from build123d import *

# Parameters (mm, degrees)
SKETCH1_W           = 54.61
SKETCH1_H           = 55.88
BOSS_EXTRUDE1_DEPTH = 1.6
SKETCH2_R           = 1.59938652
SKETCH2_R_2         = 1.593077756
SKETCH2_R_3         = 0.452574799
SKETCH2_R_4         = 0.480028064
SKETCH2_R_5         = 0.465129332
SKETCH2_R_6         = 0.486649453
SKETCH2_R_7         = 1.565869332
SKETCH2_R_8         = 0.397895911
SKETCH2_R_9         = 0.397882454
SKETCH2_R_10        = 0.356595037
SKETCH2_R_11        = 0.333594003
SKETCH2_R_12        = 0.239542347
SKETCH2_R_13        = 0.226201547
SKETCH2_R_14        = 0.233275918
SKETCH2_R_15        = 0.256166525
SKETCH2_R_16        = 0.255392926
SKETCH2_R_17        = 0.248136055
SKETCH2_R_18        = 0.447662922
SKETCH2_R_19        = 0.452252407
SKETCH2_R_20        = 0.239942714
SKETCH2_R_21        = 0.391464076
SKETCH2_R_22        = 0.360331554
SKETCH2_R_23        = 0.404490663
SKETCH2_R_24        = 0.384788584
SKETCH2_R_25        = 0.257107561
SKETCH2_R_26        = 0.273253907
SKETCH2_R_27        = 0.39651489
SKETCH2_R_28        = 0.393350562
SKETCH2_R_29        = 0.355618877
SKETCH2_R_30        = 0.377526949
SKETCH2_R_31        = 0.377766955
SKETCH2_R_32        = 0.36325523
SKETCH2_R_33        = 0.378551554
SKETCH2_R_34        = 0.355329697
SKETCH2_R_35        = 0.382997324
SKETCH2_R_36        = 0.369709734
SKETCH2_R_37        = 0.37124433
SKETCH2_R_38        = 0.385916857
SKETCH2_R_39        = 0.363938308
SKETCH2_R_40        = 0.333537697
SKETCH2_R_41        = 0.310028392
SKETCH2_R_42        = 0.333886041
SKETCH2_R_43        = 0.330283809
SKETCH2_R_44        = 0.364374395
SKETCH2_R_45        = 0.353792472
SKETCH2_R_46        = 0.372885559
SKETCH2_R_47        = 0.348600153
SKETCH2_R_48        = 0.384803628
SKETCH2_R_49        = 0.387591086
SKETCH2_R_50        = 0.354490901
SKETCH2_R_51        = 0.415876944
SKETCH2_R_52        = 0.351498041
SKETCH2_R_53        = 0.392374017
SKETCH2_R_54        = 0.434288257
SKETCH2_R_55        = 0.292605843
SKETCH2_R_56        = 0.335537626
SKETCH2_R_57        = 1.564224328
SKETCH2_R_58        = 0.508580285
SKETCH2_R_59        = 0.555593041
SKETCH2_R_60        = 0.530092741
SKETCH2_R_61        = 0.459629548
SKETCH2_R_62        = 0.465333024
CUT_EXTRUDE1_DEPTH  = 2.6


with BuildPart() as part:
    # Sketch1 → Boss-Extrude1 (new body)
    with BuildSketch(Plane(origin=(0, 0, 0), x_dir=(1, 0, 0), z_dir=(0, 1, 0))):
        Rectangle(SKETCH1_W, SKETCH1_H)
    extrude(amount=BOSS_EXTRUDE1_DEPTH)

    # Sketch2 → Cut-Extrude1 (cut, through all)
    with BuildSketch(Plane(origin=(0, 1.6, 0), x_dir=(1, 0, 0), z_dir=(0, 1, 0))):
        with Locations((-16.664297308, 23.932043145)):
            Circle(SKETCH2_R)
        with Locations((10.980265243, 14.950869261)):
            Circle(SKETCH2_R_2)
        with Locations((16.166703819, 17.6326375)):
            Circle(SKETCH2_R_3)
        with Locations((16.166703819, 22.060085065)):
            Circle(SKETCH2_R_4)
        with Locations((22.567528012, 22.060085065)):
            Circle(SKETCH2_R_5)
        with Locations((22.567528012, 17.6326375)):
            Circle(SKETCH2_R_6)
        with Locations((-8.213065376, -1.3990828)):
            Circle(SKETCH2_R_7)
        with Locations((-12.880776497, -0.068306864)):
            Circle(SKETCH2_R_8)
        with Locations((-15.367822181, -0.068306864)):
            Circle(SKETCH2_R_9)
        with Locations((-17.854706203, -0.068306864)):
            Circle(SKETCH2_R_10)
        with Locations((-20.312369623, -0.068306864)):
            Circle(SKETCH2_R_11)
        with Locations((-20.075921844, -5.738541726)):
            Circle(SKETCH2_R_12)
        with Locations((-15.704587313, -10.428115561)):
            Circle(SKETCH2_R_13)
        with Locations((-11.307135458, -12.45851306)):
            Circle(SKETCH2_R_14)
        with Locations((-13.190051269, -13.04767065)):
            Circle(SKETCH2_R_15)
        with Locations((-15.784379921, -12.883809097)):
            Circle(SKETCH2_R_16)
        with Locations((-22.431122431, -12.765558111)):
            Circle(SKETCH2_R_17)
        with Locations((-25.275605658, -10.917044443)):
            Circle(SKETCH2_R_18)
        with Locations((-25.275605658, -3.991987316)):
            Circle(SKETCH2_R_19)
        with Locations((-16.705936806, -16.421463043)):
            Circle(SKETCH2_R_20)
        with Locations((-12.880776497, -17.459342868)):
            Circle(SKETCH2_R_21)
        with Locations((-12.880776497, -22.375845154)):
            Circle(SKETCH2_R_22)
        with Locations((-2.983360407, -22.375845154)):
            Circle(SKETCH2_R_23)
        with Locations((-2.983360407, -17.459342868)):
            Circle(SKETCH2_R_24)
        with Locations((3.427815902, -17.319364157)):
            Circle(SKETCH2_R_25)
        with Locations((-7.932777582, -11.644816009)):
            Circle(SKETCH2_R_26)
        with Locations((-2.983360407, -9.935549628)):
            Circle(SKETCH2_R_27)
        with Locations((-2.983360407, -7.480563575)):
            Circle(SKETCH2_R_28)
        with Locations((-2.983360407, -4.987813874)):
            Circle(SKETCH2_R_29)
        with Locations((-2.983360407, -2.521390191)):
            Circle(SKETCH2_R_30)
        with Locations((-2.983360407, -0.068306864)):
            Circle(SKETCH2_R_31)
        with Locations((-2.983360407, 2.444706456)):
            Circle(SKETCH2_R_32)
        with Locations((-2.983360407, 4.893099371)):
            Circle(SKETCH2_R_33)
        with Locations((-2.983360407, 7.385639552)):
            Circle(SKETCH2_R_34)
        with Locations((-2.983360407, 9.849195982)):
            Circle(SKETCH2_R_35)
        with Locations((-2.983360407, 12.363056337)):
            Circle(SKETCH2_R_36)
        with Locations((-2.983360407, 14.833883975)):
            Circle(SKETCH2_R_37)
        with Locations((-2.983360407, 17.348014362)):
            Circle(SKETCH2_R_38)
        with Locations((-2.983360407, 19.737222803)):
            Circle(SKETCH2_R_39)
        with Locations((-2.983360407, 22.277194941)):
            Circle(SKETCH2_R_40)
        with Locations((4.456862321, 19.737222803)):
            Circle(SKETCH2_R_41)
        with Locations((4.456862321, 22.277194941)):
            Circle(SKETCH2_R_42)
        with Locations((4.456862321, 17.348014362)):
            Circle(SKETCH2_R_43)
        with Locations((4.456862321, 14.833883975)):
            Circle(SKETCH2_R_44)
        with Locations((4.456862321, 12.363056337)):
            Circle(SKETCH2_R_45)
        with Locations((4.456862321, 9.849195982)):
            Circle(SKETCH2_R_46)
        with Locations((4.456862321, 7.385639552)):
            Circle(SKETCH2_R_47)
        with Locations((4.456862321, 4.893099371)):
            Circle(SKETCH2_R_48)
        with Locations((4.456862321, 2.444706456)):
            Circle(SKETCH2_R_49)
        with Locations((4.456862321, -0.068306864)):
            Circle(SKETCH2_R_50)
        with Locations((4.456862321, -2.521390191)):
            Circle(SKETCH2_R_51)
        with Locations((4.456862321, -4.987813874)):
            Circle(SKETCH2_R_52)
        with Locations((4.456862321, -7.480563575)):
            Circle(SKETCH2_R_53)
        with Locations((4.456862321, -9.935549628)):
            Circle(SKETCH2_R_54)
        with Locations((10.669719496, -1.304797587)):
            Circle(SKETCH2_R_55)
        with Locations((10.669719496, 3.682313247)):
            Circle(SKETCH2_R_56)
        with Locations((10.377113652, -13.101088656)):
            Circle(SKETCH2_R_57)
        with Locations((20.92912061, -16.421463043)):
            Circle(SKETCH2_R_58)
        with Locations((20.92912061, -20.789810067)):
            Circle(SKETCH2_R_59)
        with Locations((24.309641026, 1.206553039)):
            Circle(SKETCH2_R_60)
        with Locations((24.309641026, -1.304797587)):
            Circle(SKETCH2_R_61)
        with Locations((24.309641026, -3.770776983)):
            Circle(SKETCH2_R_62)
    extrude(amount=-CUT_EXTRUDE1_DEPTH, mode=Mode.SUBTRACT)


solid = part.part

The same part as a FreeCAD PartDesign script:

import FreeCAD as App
import Part
import Sketcher

V = App.Vector


def add_polygon(sketch, points):
    """Adds a closed chain of lines whose ends are joined by coincident constraints."""
    first, n = sketch.GeometryCount, len(points)
    for a, b in zip(points, points[1:] + points[:1]):
        sketch.addGeometry(Part.LineSegment(App.Vector(*a, 0), App.Vector(*b, 0)), False)
    for i in range(n):
        sketch.addConstraint(Sketcher.Constraint("Coincident", first + i, 2, first + (i + 1) % n, 1))

doc = App.newDocument("Part")
params = doc.addObject("Spreadsheet::Sheet", "Params")
for row, (alias, value) in enumerate([
    ("sketch1_width", "54.61 mm"),
    ("sketch1_height", "55.88 mm"),
    ("pad1_length", "1.6 mm"),
], start=1):
    params.set(f"A{row}", alias)
    params.set(f"B{row}", "=" + value)
    params.setAlias(f"B{row}", alias)

body = doc.addObject("PartDesign::Body", "Body")

# Sketch on XZ plane
sketch1 = doc.addObject("Sketcher::SketchObject", "Sketch")
body.addObject(sketch1)
sketch1.AttachmentSupport = (doc.XZ_Plane, [""])
sketch1.MapMode = "FlatFace"
add_polygon(sketch1, [(-27, -28), (-27, 28), (27, 28), (27, -28)])  # lines 0-3
sketch1.addConstraint([
    Sketcher.Constraint("Vertical", 0),
    Sketcher.Constraint("Horizontal", 1),
    Sketcher.Constraint("Vertical", 2),
    Sketcher.Constraint("Horizontal", 3),
    Sketcher.Constraint("Symmetric", 0, 2, 2, 2, -1, 1),
    Sketcher.Constraint("DistanceX", 1, 1, 1, 2, 54.61),
    Sketcher.Constraint("DistanceY", 0, 1, 0, 2, 55.88),
])
sketch1.setExpression("Constraints[9]", "Params.sketch1_width")
sketch1.setExpression("Constraints[10]", "Params.sketch1_height")
pad1 = doc.addObject("PartDesign::Pad", "Pad")
body.addObject(pad1)
pad1.Profile = sketch1
pad1.setExpression("Length", "Params.pad1_length")
pad1.Reversed = True

# Sketch on XZ plane
sketch2 = doc.addObject("Sketcher::SketchObject", "Sketch001")
body.addObject(sketch2)
sketch2.AttachmentSupport = (doc.XZ_Plane, [""])
sketch2.MapMode = "FlatFace"
sketch2.AttachmentOffset = App.Placement(V(0, 0, -1.6), App.Rotation())
sketch2.addGeometry([
    Part.Circle(V(-16.66, -23.93, 0), V(0, 0, 1), 1.6),  # 0
    Part.Circle(V(10.98, -14.95, 0), V(0, 0, 1), 1.59),  # 1
    Part.Circle(V(16.17, -17.63, 0), V(0, 0, 1), 0.45),  # 2
    Part.Circle(V(16.17, -22.06, 0), V(0, 0, 1), 0.48),  # 3
    Part.Circle(V(22.57, -22.06, 0), V(0, 0, 1), 0.47),  # 4
    Part.Circle(V(22.57, -17.63, 0), V(0, 0, 1), 0.49),  # 5
    Part.Circle(V(-8.21, 1.4, 0), V(0, 0, 1), 1.57),  # 6
    Part.Circle(V(-12.88, 0.07, 0), V(0, 0, 1), 0.4),  # 7
    Part.Circle(V(-15.37, 0.07, 0), V(0, 0, 1), 0.4),  # 8
    Part.Circle(V(-17.85, 0.07, 0), V(0, 0, 1), 0.36),  # 9
    Part.Circle(V(-20.31, 0.07, 0), V(0, 0, 1), 0.33),  # 10
    Part.Circle(V(-20.08, 5.74, 0), V(0, 0, 1), 0.24),  # 11
    Part.Circle(V(-15.7, 10.43, 0), V(0, 0, 1), 0.23),  # 12
    Part.Circle(V(-11.31, 12.46, 0), V(0, 0, 1), 0.23),  # 13
    Part.Circle(V(-13.19, 13.05, 0), V(0, 0, 1), 0.26),  # 14
    Part.Circle(V(-15.78, 12.88, 0), V(0, 0, 1), 0.26),  # 15
    Part.Circle(V(-22.43, 12.77, 0), V(0, 0, 1), 0.25),  # 16
    Part.Circle(V(-25.28, 10.92, 0), V(0, 0, 1), 0.45),  # 17
    Part.Circle(V(-25.28, 3.99, 0), V(0, 0, 1), 0.45),  # 18
    Part.Circle(V(-16.71, 16.42, 0), V(0, 0, 1), 0.24),  # 19
    Part.Circle(V(-12.88, 17.46, 0), V(0, 0, 1), 0.39),  # 20
    Part.Circle(V(-12.88, 22.38, 0), V(0, 0, 1), 0.36),  # 21
    Part.Circle(V(-2.98, 22.38, 0), V(0, 0, 1), 0.4),  # 22
    Part.Circle(V(-2.98, 17.46, 0), V(0, 0, 1), 0.38),  # 23
    Part.Circle(V(3.43, 17.32, 0), V(0, 0, 1), 0.26),  # 24
    Part.Circle(V(-7.93, 11.64, 0), V(0, 0, 1), 0.27),  # 25
    Part.Circle(V(-2.98, 9.94, 0), V(0, 0, 1), 0.4),  # 26
    Part.Circle(V(-2.98, 7.48, 0), V(0, 0, 1), 0.39),  # 27
    Part.Circle(V(-2.98, 4.99, 0), V(0, 0, 1), 0.36),  # 28
    Part.Circle(V(-2.98, 2.52, 0), V(0, 0, 1), 0.38),  # 29
    Part.Circle(V(-2.98, 0.07, 0), V(0, 0, 1), 0.38),  # 30
    Part.Circle(V(-2.98, -2.44, 0), V(0, 0, 1), 0.36),  # 31
    Part.Circle(V(-2.98, -4.89, 0), V(0, 0, 1), 0.38),  # 32
    Part.Circle(V(-2.98, -7.39, 0), V(0, 0, 1), 0.36),  # 33
    Part.Circle(V(-2.98, -9.85, 0), V(0, 0, 1), 0.38),  # 34
    Part.Circle(V(-2.98, -12.36, 0), V(0, 0, 1), 0.37),  # 35
    Part.Circle(V(-2.98, -14.83, 0), V(0, 0, 1), 0.37),  # 36
    Part.Circle(V(-2.98, -17.35, 0), V(0, 0, 1), 0.39),  # 37
    Part.Circle(V(-2.98, -19.74, 0), V(0, 0, 1), 0.36),  # 38
    Part.Circle(V(-2.98, -22.28, 0), V(0, 0, 1), 0.33),  # 39
    Part.Circle(V(4.46, -19.74, 0), V(0, 0, 1), 0.31),  # 40
    Part.Circle(V(4.46, -22.28, 0), V(0, 0, 1), 0.33),  # 41
    Part.Circle(V(4.46, -17.35, 0), V(0, 0, 1), 0.33),  # 42
    Part.Circle(V(4.46, -14.83, 0), V(0, 0, 1), 0.36),  # 43
    Part.Circle(V(4.46, -12.36, 0), V(0, 0, 1), 0.35),  # 44
    Part.Circle(V(4.46, -9.85, 0), V(0, 0, 1), 0.37),  # 45
    Part.Circle(V(4.46, -7.39, 0), V(0, 0, 1), 0.35),  # 46
    Part.Circle(V(4.46, -4.89, 0), V(0, 0, 1), 0.38),  # 47
    Part.Circle(V(4.46, -2.44, 0), V(0, 0, 1), 0.39),  # 48
    Part.Circle(V(4.46, 0.07, 0), V(0, 0, 1), 0.35),  # 49
    Part.Circle(V(4.46, 2.52, 0), V(0, 0, 1), 0.42),  # 50
    Part.Circle(V(4.46, 4.99, 0), V(0, 0, 1), 0.35),  # 51
    Part.Circle(V(4.46, 7.48, 0), V(0, 0, 1), 0.39),  # 52
    Part.Circle(V(4.46, 9.94, 0), V(0, 0, 1), 0.43),  # 53
    Part.Circle(V(10.67, 1.3, 0), V(0, 0, 1), 0.29),  # 54
    Part.Circle(V(10.67, -3.68, 0), V(0, 0, 1), 0.34),  # 55
    Part.Circle(V(10.38, 13.1, 0), V(0, 0, 1), 1.56),  # 56
    Part.Circle(V(20.93, 16.42, 0), V(0, 0, 1), 0.51),  # 57
    Part.Circle(V(20.93, 20.79, 0), V(0, 0, 1), 0.56),  # 58
    Part.Circle(V(24.31, -1.21, 0), V(0, 0, 1), 0.53),  # 59
    Part.Circle(V(24.31, 1.3, 0), V(0, 0, 1), 0.46),  # 60
    Part.Circle(V(24.31, 3.77, 0), V(0, 0, 1), 0.47),  # 61
], False)
sketch2.addConstraint([
    Sketcher.Constraint("Horizontal", 3, 3, 4, 3),
    Sketcher.Constraint("Horizontal", 2, 3, 5, 3),
    Sketcher.Constraint("Horizontal", 7, 3, 8, 3),
    Sketcher.Constraint("Horizontal", 8, 3, 9, 3),
    Sketcher.Constraint("Horizontal", 9, 3, 10, 3),
    Sketcher.Constraint("Horizontal", 21, 3, 22, 3),
    Sketcher.Constraint("Horizontal", 20, 3, 23, 3),
    Sketcher.Constraint("Horizontal", 10, 3, 30, 3),
    Sketcher.Constraint("Horizontal", 38, 3, 40, 3),
    Sketcher.Constraint("Horizontal", 39, 3, 41, 3),
    Sketcher.Constraint("Horizontal", 37, 3, 42, 3),
    Sketcher.Constraint("Horizontal", 36, 3, 43, 3),
    Sketcher.Constraint("Horizontal", 35, 3, 44, 3),
    Sketcher.Constraint("Horizontal", 34, 3, 45, 3),
    Sketcher.Constraint("Horizontal", 33, 3, 46, 3),
    Sketcher.Constraint("Horizontal", 32, 3, 47, 3),
    Sketcher.Constraint("Horizontal", 31, 3, 48, 3),
    Sketcher.Constraint("Horizontal", 30, 3, 49, 3),
    Sketcher.Constraint("Horizontal", 29, 3, 50, 3),
    Sketcher.Constraint("Horizontal", 28, 3, 51, 3),
    Sketcher.Constraint("Horizontal", 27, 3, 52, 3),
    Sketcher.Constraint("Horizontal", 26, 3, 53, 3),
    Sketcher.Constraint("Horizontal", 19, 3, 57, 3),
    Sketcher.Constraint("Horizontal", 54, 3, 60, 3),
    Sketcher.Constraint("Vertical", 2, 3, 3, 3),
    Sketcher.Constraint("Vertical", 4, 3, 5, 3),
    Sketcher.Constraint("Vertical", 17, 3, 18, 3),
    Sketcher.Constraint("Vertical", 7, 3, 20, 3),
    Sketcher.Constraint("Vertical", 20, 3, 21, 3),
    Sketcher.Constraint("Vertical", 22, 3, 23, 3),
    Sketcher.Constraint("Vertical", 23, 3, 26, 3),
    Sketcher.Constraint("Vertical", 26, 3, 27, 3),
    Sketcher.Constraint("Vertical", 27, 3, 28, 3),
    Sketcher.Constraint("Vertical", 28, 3, 29, 3),
    Sketcher.Constraint("Vertical", 29, 3, 30, 3),
    Sketcher.Constraint("Vertical", 30, 3, 31, 3),
    Sketcher.Constraint("Vertical", 31, 3, 32, 3),
    Sketcher.Constraint("Vertical", 32, 3, 33, 3),
    Sketcher.Constraint("Vertical", 33, 3, 34, 3),
    Sketcher.Constraint("Vertical", 34, 3, 35, 3),
    Sketcher.Constraint("Vertical", 35, 3, 36, 3),
    Sketcher.Constraint("Vertical", 36, 3, 37, 3),
    Sketcher.Constraint("Vertical", 37, 3, 38, 3),
    Sketcher.Constraint("Vertical", 38, 3, 39, 3),
    Sketcher.Constraint("Vertical", 40, 3, 41, 3),
    Sketcher.Constraint("Vertical", 41, 3, 42, 3),
    Sketcher.Constraint("Vertical", 42, 3, 43, 3),
    Sketcher.Constraint("Vertical", 43, 3, 44, 3),
    Sketcher.Constraint("Vertical", 44, 3, 45, 3),
    Sketcher.Constraint("Vertical", 45, 3, 46, 3),
    Sketcher.Constraint("Vertical", 46, 3, 47, 3),
    Sketcher.Constraint("Vertical", 47, 3, 48, 3),
    Sketcher.Constraint("Vertical", 48, 3, 49, 3),
    Sketcher.Constraint("Vertical", 49, 3, 50, 3),
    Sketcher.Constraint("Vertical", 50, 3, 51, 3),
    Sketcher.Constraint("Vertical", 51, 3, 52, 3),
    Sketcher.Constraint("Vertical", 52, 3, 53, 3),
    Sketcher.Constraint("Vertical", 54, 3, 55, 3),
    Sketcher.Constraint("Vertical", 57, 3, 58, 3),
    Sketcher.Constraint("Vertical", 59, 3, 60, 3),
    Sketcher.Constraint("Vertical", 60, 3, 61, 3),
    Sketcher.Constraint("Diameter", 5, 0.973299),
    Sketcher.Constraint("Diameter", 27, 0.786701),
    Sketcher.Constraint("Diameter", 46, 0.6972),
    Sketcher.Constraint("Diameter", 2, 0.90515),
    Sketcher.Constraint("Diameter", 4, 0.930259),
    Sketcher.Constraint("Diameter", 6, 3.131739),
    Sketcher.Constraint("Diameter", 7, 0.795792),
    Sketcher.Constraint("Diameter", 9, 0.71319),
    Sketcher.Constraint("Diameter", 10, 0.667188),
    Sketcher.Constraint("Diameter", 13, 0.466552),
    Sketcher.Constraint("Diameter", 20, 0.782928),
    Sketcher.Constraint("Diameter", 22, 0.808981),
    Sketcher.Constraint("Diameter", 26, 0.79303),
    Sketcher.Constraint("Diameter", 31, 0.72651),
    Sketcher.Constraint("Diameter", 33, 0.710659),
    Sketcher.Constraint("Diameter", 35, 0.739419),
    Sketcher.Constraint("Diameter", 36, 0.742489),
    Sketcher.Constraint("Diameter", 43, 0.728749),
    Sketcher.Constraint("Diameter", 45, 0.745771),
    Sketcher.Constraint("Diameter", 49, 0.708982),
    Sketcher.Constraint("Diameter", 52, 0.784748),
    Sketcher.Constraint("Diameter", 54, 0.585212),
    Sketcher.Constraint("Diameter", 56, 3.128449),
    Sketcher.Constraint("Diameter", 57, 1.017161),
    Sketcher.Constraint("Diameter", 60, 0.919259),
    Sketcher.Constraint("Diameter", 0, 3.198773),
    Sketcher.Constraint("Diameter", 1, 3.186156),
    Sketcher.Constraint("Diameter", 3, 0.960056),
    Sketcher.Constraint("Diameter", 8, 0.795765),
    Sketcher.Constraint("Diameter", 11, 0.479085),
    Sketcher.Constraint("Diameter", 12, 0.452403),
    Sketcher.Constraint("Diameter", 14, 0.512333),
    Sketcher.Constraint("Diameter", 15, 0.510786),
    Sketcher.Constraint("Diameter", 16, 0.496272),
    Sketcher.Constraint("Diameter", 17, 0.895326),
    Sketcher.Constraint("Diameter", 18, 0.904505),
    Sketcher.Constraint("Diameter", 19, 0.479885),
    Sketcher.Constraint("Diameter", 21, 0.720663),
    Sketcher.Constraint("Diameter", 23, 0.769577),
    Sketcher.Constraint("Diameter", 24, 0.514215),
    Sketcher.Constraint("Diameter", 25, 0.546508),
    Sketcher.Constraint("Diameter", 28, 0.711238),
    Sketcher.Constraint("Diameter", 29, 0.755054),
    Sketcher.Constraint("Diameter", 30, 0.755534),
    Sketcher.Constraint("Diameter", 32, 0.757103),
    Sketcher.Constraint("Diameter", 34, 0.765995),
    Sketcher.Constraint("Diameter", 37, 0.771834),
    Sketcher.Constraint("Diameter", 38, 0.727877),
    Sketcher.Constraint("Diameter", 39, 0.667075),
    Sketcher.Constraint("Diameter", 40, 0.620057),
    Sketcher.Constraint("Diameter", 41, 0.667772),
    Sketcher.Constraint("Diameter", 42, 0.660568),
    Sketcher.Constraint("Diameter", 44, 0.707585),
    Sketcher.Constraint("Diameter", 47, 0.769607),
    Sketcher.Constraint("Diameter", 48, 0.775182),
    Sketcher.Constraint("Diameter", 50, 0.831754),
    Sketcher.Constraint("Diameter", 51, 0.702996),
    Sketcher.Constraint("Diameter", 53, 0.868577),
    Sketcher.Constraint("Diameter", 55, 0.671075),
    Sketcher.Constraint("Diameter", 58, 1.111186),
    Sketcher.Constraint("Diameter", 59, 1.060185),
    Sketcher.Constraint("Diameter", 61, 0.930666),
    Sketcher.Constraint("DistanceY", 32, 3, -1, 1, 4.893099),
    Sketcher.Constraint("DistanceY", 1, 3, -1, 1, 14.950869),
    Sketcher.Constraint("DistanceX", -1, 1, 4, 3, 22.567528),
    Sketcher.Constraint("DistanceX", 10, 3, -1, 1, 20.31237),
    Sketcher.Constraint("DistanceX", 11, 3, -1, 1, 20.075922),
    Sketcher.Constraint("DistanceY", -1, 1, 11, 3, 5.738542),
    Sketcher.Constraint("DistanceX", 14, 3, -1, 1, 13.190051),
    Sketcher.Constraint("DistanceY", -1, 1, 14, 3, 13.047671),
    Sketcher.Constraint("DistanceX", 15, 3, -1, 1, 15.78438),
    Sketcher.Constraint("DistanceY", -1, 1, 15, 3, 12.883809),
    Sketcher.Constraint("DistanceY", -1, 1, 16, 3, 12.765558),
    Sketcher.Constraint("DistanceX", 22, 3, -1, 1, 2.98336),
    Sketcher.Constraint("DistanceY", -1, 1, 26, 3, 9.93555),
    Sketcher.Constraint("DistanceY", -1, 1, 29, 3, 2.52139),
    Sketcher.Constraint("DistanceY", 33, 3, -1, 1, 7.38564),
    Sketcher.Constraint("DistanceX", -1, 1, 54, 3, 10.669719),
    Sketcher.Constraint("DistanceY", -1, 1, 56, 3, 13.101089),
    Sketcher.Constraint("DistanceX", -1, 1, 57, 3, 20.929121),
    Sketcher.Constraint("DistanceY", -1, 1, 58, 3, 20.78981),
    Sketcher.Constraint("DistanceX", -1, 1, 59, 3, 24.309641),
    Sketcher.Constraint("DistanceX", 0, 3, -1, 1, 16.664297),
    Sketcher.Constraint("DistanceY", 0, 3, -1, 1, 23.932043),
    Sketcher.Constraint("DistanceX", -1, 1, 1, 3, 10.980265),
    Sketcher.Constraint("DistanceX", -1, 1, 2, 3, 16.166704),
    Sketcher.Constraint("DistanceY", 2, 3, -1, 1, 17.632638),
    Sketcher.Constraint("DistanceY", 3, 3, -1, 1, 22.060085),
    Sketcher.Constraint("DistanceX", 6, 3, -1, 1, 8.213065),
    Sketcher.Constraint("DistanceY", -1, 1, 6, 3, 1.399083),
    Sketcher.Constraint("DistanceX", 7, 3, -1, 1, 12.880776),
    Sketcher.Constraint("DistanceY", -1, 1, 7, 3, 0.068307),
    Sketcher.Constraint("DistanceX", 8, 3, -1, 1, 15.367822),
    Sketcher.Constraint("DistanceX", 9, 3, -1, 1, 17.854706),
    Sketcher.Constraint("DistanceX", 12, 3, -1, 1, 15.704587),
    Sketcher.Constraint("DistanceY", -1, 1, 12, 3, 10.428116),
    Sketcher.Constraint("DistanceX", 13, 3, -1, 1, 11.307135),
    Sketcher.Constraint("DistanceY", -1, 1, 13, 3, 12.458513),
    Sketcher.Constraint("DistanceX", 16, 3, -1, 1, 22.431122),
    Sketcher.Constraint("DistanceX", 17, 3, -1, 1, 25.275606),
    Sketcher.Constraint("DistanceY", -1, 1, 17, 3, 10.917044),
    Sketcher.Constraint("DistanceY", -1, 1, 18, 3, 3.991987),
    Sketcher.Constraint("DistanceX", 19, 3, -1, 1, 16.705937),
    Sketcher.Constraint("DistanceY", -1, 1, 19, 3, 16.421463),
    Sketcher.Constraint("DistanceY", -1, 1, 20, 3, 17.459343),
    Sketcher.Constraint("DistanceY", -1, 1, 21, 3, 22.375845),
    Sketcher.Constraint("DistanceX", -1, 1, 24, 3, 3.427816),
    Sketcher.Constraint("DistanceY", -1, 1, 24, 3, 17.319364),
    Sketcher.Constraint("DistanceX", 25, 3, -1, 1, 7.932778),
    Sketcher.Constraint("DistanceY", -1, 1, 25, 3, 11.644816),
    Sketcher.Constraint("DistanceY", -1, 1, 27, 3, 7.480564),
    Sketcher.Constraint("DistanceY", -1, 1, 28, 3, 4.987814),
    Sketcher.Constraint("DistanceY", 31, 3, -1, 1, 2.444706),
    Sketcher.Constraint("DistanceY", 34, 3, -1, 1, 9.849196),
    Sketcher.Constraint("DistanceY", 35, 3, -1, 1, 12.363056),
    Sketcher.Constraint("DistanceY", 36, 3, -1, 1, 14.833884),
    Sketcher.Constraint("DistanceY", 37, 3, -1, 1, 17.348014),
    Sketcher.Constraint("DistanceY", 38, 3, -1, 1, 19.737223),
    Sketcher.Constraint("DistanceY", 39, 3, -1, 1, 22.277195),
    Sketcher.Constraint("DistanceX", -1, 1, 40, 3, 4.456862),
    Sketcher.Constraint("DistanceY", -1, 1, 54, 3, 1.304798),
    Sketcher.Constraint("DistanceY", 55, 3, -1, 1, 3.682313),
    Sketcher.Constraint("DistanceX", -1, 1, 56, 3, 10.377114),
    Sketcher.Constraint("DistanceY", 59, 3, -1, 1, 1.206553),
    Sketcher.Constraint("DistanceY", -1, 1, 61, 3, 3.770777),
])
pocket1 = doc.addObject("PartDesign::Pocket", "Pocket")
body.addObject(pocket1)
pocket1.Profile = sketch2
pocket1.Type = "ThroughAll"
pocket1.Reversed = True

doc.recompute()
